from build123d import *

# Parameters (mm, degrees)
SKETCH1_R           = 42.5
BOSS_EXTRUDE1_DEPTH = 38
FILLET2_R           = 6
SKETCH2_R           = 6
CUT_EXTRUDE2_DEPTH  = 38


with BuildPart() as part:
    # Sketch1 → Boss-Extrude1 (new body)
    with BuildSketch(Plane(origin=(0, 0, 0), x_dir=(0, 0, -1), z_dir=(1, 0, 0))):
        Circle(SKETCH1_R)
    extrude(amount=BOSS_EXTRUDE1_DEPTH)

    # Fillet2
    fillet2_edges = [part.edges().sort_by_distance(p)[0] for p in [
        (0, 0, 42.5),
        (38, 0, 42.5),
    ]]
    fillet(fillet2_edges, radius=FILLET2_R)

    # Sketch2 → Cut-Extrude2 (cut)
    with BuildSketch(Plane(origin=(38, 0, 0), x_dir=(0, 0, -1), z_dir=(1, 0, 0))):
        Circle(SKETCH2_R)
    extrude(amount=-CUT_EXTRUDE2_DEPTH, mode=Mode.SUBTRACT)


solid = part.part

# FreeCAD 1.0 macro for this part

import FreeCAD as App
import Part
import Sketcher

V = App.Vector


def edges_at(feature, points):
    """Names of the edges that pass closest to the given points."""
    edges = feature.Shape.Edges
    near = lambda p: min(range(len(edges)), key=lambda i: edges[i].distToShape(Part.Vertex(*p))[0])
    return sorted({f"Edge{near(p) + 1}" for p in points})

doc = App.newDocument("Part")
body = doc.addObject("PartDesign::Body", "Body")

# Sketch on YZ plane
sketch1 = body.newObject("Sketcher::SketchObject", "Sketch")
sketch1.AttachmentSupport = (doc.getObject("YZ_Plane"), [""])
sketch1.MapMode = "FlatFace"
sketch1.addGeometry(Part.Circle(V(0, 0, 0), V(0, 0, 1), 42), False)
sketch1.addConstraint(Sketcher.Constraint("Coincident", 0, 3, -1, 1))
sketch1.addConstraint(Sketcher.Constraint("Diameter", 0, 85.0))
pad1 = body.newObject("PartDesign::Pad", "Pad")
pad1.Profile = sketch1
pad1.Length = 38
doc.recompute()

fillet = body.newObject("PartDesign::Fillet", "Fillet")
fillet.Base = (pad1, edges_at(pad1, [(0, 0, 42.5), (38, 0, 42.5)]))
fillet.Radius = 6

# Sketch on YZ plane
sketch2 = body.newObject("Sketcher::SketchObject", "Sketch001")
sketch2.AttachmentSupport = (doc.getObject("YZ_Plane"), [""])
sketch2.MapMode = "FlatFace"
sketch2.AttachmentOffset = App.Placement(V(0, 0, 38), App.Rotation())
sketch2.addGeometry(Part.Circle(V(0, 0, 0), V(0, 0, 1), 6), False)
sketch2.addConstraint(Sketcher.Constraint("Coincident", 0, 3, -1, 1))
sketch2.addConstraint(Sketcher.Constraint("Diameter", 0, 12.0))
pocket1 = body.newObject("PartDesign::Pocket", "Pocket")
pocket1.Profile = sketch2
pocket1.Length = 38

doc.recompute()
